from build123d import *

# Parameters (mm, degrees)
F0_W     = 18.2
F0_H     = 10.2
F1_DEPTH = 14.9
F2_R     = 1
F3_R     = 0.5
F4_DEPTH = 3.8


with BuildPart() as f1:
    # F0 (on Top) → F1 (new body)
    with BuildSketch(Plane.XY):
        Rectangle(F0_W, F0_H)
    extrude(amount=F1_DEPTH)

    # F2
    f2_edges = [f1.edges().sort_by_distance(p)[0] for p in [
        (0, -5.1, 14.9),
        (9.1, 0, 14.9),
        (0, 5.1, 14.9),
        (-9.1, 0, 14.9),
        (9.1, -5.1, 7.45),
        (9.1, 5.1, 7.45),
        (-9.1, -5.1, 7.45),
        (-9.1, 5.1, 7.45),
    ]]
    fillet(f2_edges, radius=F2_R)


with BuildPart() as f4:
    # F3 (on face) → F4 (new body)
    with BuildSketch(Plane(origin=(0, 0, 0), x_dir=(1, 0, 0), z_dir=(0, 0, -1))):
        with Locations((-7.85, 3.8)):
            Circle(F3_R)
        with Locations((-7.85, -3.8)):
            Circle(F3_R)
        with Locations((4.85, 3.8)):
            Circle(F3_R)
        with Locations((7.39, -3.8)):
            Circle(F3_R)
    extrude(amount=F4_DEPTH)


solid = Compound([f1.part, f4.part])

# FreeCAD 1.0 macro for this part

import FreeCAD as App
import Part
import Sketcher
from FreeCAD import Vector
Q = App.Units.Quantity


def edges_at(feature, points):
    """Names of the edges that pass closest to the given points."""
    edges = feature.Shape.Edges
    near = lambda p: min(range(len(edges)), key=lambda i: edges[i].distToShape(Part.Vertex(*p))[0])
    return sorted({f"Edge{near(p) + 1}" for p in points})


def add_polygon(sketch, points):
    """Adds a closed chain of lines whose ends are joined by coincident constraints."""
    first, n = sketch.GeometryCount, len(points)
    for a, b in zip(points, points[1:] + points[:1]):
        sketch.addGeometry(Part.LineSegment(App.Vector(*a, 0), App.Vector(*b, 0)), False)
    for i in range(n):
        sketch.addConstraint(Sketcher.Constraint("Coincident", first + i, 2, first + (i + 1) % n, 1))

doc = App.newDocument("Part")
body = doc.addObject("PartDesign::Body", "Body")

sketch1 = doc.addObject("Sketcher::SketchObject", "Sketch")
body.addObject(sketch1)
sketch1.AttachmentSupport = (doc.XY_Plane, [""])
sketch1.MapMode = "FlatFace"
add_polygon(sketch1, [(-9, 5), (-9, -5), (9, -5), (9, 5)])
sketch1.addConstraint([
    Sketcher.Constraint("Vertical", 0),
    Sketcher.Constraint("Horizontal", 1),
    Sketcher.Constraint("Vertical", 2),
    Sketcher.Constraint("Horizontal", 3),
    Sketcher.Constraint("Symmetric", 0, 2, 2, 2, -1, 1),
    Sketcher.Constraint("DistanceX", 1, 1, 1, 2, Q("18.2 mm")),
    Sketcher.Constraint("DistanceY", 0, 2, 0, 1, Q("10.2 mm")),
])
pad1 = doc.addObject("PartDesign::Pad", "Pad")
body.addObject(pad1)
pad1.Profile = sketch1
pad1.Length = 14.9
doc.recompute()

fillet = doc.addObject("PartDesign::Fillet", "Fillet")
body.addObject(fillet)
fillet.Base = (pad1, edges_at(pad1, [
    (0, -5.1, 14.9),
    (9.1, 0, 14.9),
    (0, 5.1, 14.9),
    (-9.1, 0, 14.9),
    (9.1, -5.1, 7.45),
    (9.1, 5.1, 7.45),
    (-9.1, -5.1, 7.45),
    (-9.1, 5.1, 7.45),
]))
fillet.Radius = 1
body2 = doc.addObject("PartDesign::Body", "Body001")
body2.AllowCompound = True

sketch2 = doc.addObject("Sketcher::SketchObject", "Sketch001")
body2.addObject(sketch2)
sketch2.AttachmentSupport = (doc.getObject("XY_Plane001"), [""])
sketch2.MapMode = "FlatFace"
sketch2.addGeometry([
    Part.Circle(Vector(-7.8, -3.8, 0), Vector(0, 0, 1), 0.5),
    Part.Circle(Vector(-7.8, 3.8, 0), Vector(0, 0, 1), 0.5),
    Part.Circle(Vector(4.8, -3.8, 0), Vector(0, 0, 1), 0.5),
    Part.Circle(Vector(7.4, 3.8, 0), Vector(0, 0, 1), 0.5),
], False)
sketch2.addConstraint([
    Sketcher.Constraint("Equal", 0, 1),
    Sketcher.Constraint("Equal", 1, 2),
    Sketcher.Constraint("Equal", 2, 3),
    Sketcher.Constraint("Symmetric", 0, 3, 1, 3, -1),
    Sketcher.Constraint("Horizontal", 0, 3, 2, 3),
    Sketcher.Constraint("Horizontal", 1, 3, 3, 3),
    Sketcher.Constraint("Diameter", 0, Q("1 mm")),
    Sketcher.Constraint("DistanceY", 0, 3, -1, 1, Q("3.8 mm")),
    Sketcher.Constraint("DistanceX", 0, 3, 2, 3, Q("12.7 mm")),
    Sketcher.Constraint("DistanceX", 0, 3, -1, 1, Q("7.85 mm")),
    Sketcher.Constraint("DistanceX", -1, 1, 3, 3, Q("7.39 mm")),
])
pad2 = doc.addObject("PartDesign::Pad", "Pad001")
body2.addObject(pad2)
pad2.Profile = sketch2
pad2.Length = 3.8
pad2.Reversed = True

doc.recompute()
